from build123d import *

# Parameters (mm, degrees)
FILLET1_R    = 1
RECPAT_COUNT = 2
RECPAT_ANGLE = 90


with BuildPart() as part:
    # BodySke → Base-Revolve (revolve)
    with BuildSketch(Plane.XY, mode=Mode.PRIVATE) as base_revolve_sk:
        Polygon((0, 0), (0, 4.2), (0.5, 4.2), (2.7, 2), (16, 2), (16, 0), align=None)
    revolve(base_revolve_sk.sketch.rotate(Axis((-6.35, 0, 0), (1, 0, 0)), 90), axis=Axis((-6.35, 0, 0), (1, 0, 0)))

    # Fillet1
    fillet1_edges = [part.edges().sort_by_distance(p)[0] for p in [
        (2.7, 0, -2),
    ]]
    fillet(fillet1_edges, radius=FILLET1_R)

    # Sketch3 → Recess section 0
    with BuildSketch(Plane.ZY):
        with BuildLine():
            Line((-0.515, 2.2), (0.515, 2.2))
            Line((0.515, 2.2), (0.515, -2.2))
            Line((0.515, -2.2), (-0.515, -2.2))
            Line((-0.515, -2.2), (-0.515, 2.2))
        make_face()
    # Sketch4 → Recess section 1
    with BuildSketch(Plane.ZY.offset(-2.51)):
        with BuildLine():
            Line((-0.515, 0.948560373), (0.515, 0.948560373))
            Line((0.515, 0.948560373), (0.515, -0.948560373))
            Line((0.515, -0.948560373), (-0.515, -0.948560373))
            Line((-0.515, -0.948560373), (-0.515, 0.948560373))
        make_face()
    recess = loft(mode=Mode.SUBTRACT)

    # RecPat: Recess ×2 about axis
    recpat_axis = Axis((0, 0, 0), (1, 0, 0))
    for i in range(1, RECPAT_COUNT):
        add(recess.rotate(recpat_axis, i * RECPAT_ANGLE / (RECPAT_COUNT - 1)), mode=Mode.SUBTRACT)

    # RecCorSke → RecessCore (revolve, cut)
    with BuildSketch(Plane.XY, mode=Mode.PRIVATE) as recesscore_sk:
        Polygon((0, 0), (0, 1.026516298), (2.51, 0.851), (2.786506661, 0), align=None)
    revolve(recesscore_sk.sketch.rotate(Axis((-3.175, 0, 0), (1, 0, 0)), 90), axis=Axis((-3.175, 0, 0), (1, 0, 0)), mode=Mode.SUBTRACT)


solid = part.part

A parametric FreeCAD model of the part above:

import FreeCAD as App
import Part
import Sketcher

V = App.Vector
Q = App.Units.Quantity


def edges_at(feature, points):
    """Names of the edges that pass closest to the given points."""
    edges = feature.Shape.Edges
    near = lambda p: min(range(len(edges)), key=lambda i: edges[i].distToShape(Part.Vertex(*p))[0])
    return sorted({f"Edge{near(p) + 1}" for p in points})


def add_polygon(sketch, points):
    """Adds a closed chain of lines whose ends are joined by coincident constraints."""
    first, n = sketch.GeometryCount, len(points)
    for a, b in zip(points, points[1:] + points[:1]):
        sketch.addGeometry(Part.LineSegment(App.Vector(*a, 0), App.Vector(*b, 0)), False)
    for i in range(n):
        sketch.addConstraint(Sketcher.Constraint("Coincident", first + i, 2, first + (i + 1) % n, 1))

doc = App.newDocument("Part")
body = doc.addObject("PartDesign::Body", "Body")

# Sketch on XY plane
sketch1 = body.newObject("Sketcher::SketchObject", "Sketch")
sketch1.AttachmentSupport = (doc.getObject("XY_Plane"), [""])
sketch1.MapMode = "FlatFace"
add_polygon(sketch1, [(0, 4.2), (0, 0), (16, 0), (16, 2), (2.7, 2), (0.5, 4.2)])  # lines 0-5
sketch1.addConstraint([
    Sketcher.Constraint("Vertical", 0),
    Sketcher.Constraint("Horizontal", 1),
    Sketcher.Constraint("Vertical", 2),
    Sketcher.Constraint("Horizontal", 3),
    Sketcher.Constraint("Horizontal", 5),
    Sketcher.Constraint("Coincident", 0, 2, -1, 1),
    Sketcher.Constraint("DistanceX", 1, 1, 1, 2, Q("16 mm")),
    Sketcher.Constraint("DistanceY", 2, 1, 2, 2, Q("2 mm")),
    Sketcher.Constraint("Angle", 4, Q("135 deg")),
    Sketcher.Constraint("DistanceX", 3, 2, 3, 1, Q("13.3 mm")),
    Sketcher.Constraint("DistanceX", 5, 2, 5, 1, Q("0.5 mm")),
])
revolution = body.newObject("PartDesign::Revolution", "Revolution")
revolution.Profile = sketch1
revolution.ReferenceAxis = (sketch1, ["H_Axis"])
revolution.Angle = 360
doc.recompute()

fillet = body.newObject("PartDesign::Fillet", "Fillet")
fillet.Base = (revolution, edges_at(revolution, [(2.7, 0, -2)]))
fillet.Radius = 1

# Sketch on YZ plane
sketch2 = body.newObject("Sketcher::SketchObject", "Sketch001")
sketch2.AttachmentSupport = (doc.getObject("YZ_Plane"), [""])
sketch2.MapMode = "FlatFace"
add_polygon(sketch2, [(2.2, 0.5), (2.2, -0.5), (-2.2, -0.5), (-2.2, 0.5)])  # lines 0-3
sketch2.addConstraint([
    Sketcher.Constraint("Vertical", 0),
    Sketcher.Constraint("Horizontal", 1),
    Sketcher.Constraint("Vertical", 2),
    Sketcher.Constraint("Horizontal", 3),
    Sketcher.Constraint("Symmetric", 0, 2, 2, 2, -1, 1),
    Sketcher.Constraint("DistanceX", 1, 2, 1, 1, Q("4.4 mm")),
    Sketcher.Constraint("DistanceY", 0, 2, 0, 1, Q("1.03 mm")),
])

# Sketch on YZ plane
sketch3 = body.newObject("Sketcher::SketchObject", "Sketch002")
sketch3.AttachmentSupport = (doc.getObject("YZ_Plane"), [""])
sketch3.MapMode = "FlatFace"
sketch3.AttachmentOffset = App.Placement(V(0, 0, 2.51), App.Rotation())
add_polygon(sketch3, [(0.9, 0.5), (0.9, -0.5), (-0.9, -0.5), (-0.9, 0.5)])  # lines 0-3
sketch3.addConstraint([
    Sketcher.Constraint("Vertical", 0),
    Sketcher.Constraint("Horizontal", 1),
    Sketcher.Constraint("Vertical", 2),
    Sketcher.Constraint("Horizontal", 3),
    Sketcher.Constraint("Symmetric", 0, 2, 2, 2, -1, 1),
    Sketcher.Constraint("DistanceY", 0, 2, 0, 1, Q("1.03 mm")),
    Sketcher.Constraint("DistanceX", 1, 2, 1, 1, Q("1.897121 mm")),
])

subtractiveloft = body.newObject("PartDesign::SubtractiveLoft", "SubtractiveLoft")
subtractiveloft.Profile = sketch2
subtractiveloft.Sections = [sketch3]
doc.recompute()

polarpattern = body.newObject("PartDesign::PolarPattern", "PolarPattern")
polarpattern.Originals = [subtractiveloft]
polarpattern.Axis = (doc.getObject("X_Axis"), [""])
polarpattern.Angle = 90
polarpattern.Occurrences = 2
body.Tip = polarpattern

# Sketch on XY plane
sketch4 = body.newObject("Sketcher::SketchObject", "Sketch003")
sketch4.AttachmentSupport = (doc.getObject("XY_Plane"), [""])
sketch4.MapMode = "FlatFace"
add_polygon(sketch4, [(0, 1), (0, 0), (2.8, 0), (2.5, 0.9)])  # lines 0-3
sketch4.addConstraint([
    Sketcher.Constraint("Vertical", 0),
    Sketcher.Constraint("Horizontal", 1),
    Sketcher.Constraint("Coincident", 0, 2, -1, 1),
    Sketcher.Constraint("Angle", 2, Q("108 deg")),
    Sketcher.Constraint("Angle", 3, Q("176 deg")),
    Sketcher.Constraint("DistanceX", -1, 1, 2, 2, Q("2.51 mm")),
    Sketcher.Constraint("DistanceY", -1, 1, 2, 2, Q("0.851 mm")),
])
groove = body.newObject("PartDesign::Groove", "Groove")
groove.Profile = sketch4
groove.ReferenceAxis = (sketch4, ["H_Axis"])
groove.Angle = 360

doc.recompute()
